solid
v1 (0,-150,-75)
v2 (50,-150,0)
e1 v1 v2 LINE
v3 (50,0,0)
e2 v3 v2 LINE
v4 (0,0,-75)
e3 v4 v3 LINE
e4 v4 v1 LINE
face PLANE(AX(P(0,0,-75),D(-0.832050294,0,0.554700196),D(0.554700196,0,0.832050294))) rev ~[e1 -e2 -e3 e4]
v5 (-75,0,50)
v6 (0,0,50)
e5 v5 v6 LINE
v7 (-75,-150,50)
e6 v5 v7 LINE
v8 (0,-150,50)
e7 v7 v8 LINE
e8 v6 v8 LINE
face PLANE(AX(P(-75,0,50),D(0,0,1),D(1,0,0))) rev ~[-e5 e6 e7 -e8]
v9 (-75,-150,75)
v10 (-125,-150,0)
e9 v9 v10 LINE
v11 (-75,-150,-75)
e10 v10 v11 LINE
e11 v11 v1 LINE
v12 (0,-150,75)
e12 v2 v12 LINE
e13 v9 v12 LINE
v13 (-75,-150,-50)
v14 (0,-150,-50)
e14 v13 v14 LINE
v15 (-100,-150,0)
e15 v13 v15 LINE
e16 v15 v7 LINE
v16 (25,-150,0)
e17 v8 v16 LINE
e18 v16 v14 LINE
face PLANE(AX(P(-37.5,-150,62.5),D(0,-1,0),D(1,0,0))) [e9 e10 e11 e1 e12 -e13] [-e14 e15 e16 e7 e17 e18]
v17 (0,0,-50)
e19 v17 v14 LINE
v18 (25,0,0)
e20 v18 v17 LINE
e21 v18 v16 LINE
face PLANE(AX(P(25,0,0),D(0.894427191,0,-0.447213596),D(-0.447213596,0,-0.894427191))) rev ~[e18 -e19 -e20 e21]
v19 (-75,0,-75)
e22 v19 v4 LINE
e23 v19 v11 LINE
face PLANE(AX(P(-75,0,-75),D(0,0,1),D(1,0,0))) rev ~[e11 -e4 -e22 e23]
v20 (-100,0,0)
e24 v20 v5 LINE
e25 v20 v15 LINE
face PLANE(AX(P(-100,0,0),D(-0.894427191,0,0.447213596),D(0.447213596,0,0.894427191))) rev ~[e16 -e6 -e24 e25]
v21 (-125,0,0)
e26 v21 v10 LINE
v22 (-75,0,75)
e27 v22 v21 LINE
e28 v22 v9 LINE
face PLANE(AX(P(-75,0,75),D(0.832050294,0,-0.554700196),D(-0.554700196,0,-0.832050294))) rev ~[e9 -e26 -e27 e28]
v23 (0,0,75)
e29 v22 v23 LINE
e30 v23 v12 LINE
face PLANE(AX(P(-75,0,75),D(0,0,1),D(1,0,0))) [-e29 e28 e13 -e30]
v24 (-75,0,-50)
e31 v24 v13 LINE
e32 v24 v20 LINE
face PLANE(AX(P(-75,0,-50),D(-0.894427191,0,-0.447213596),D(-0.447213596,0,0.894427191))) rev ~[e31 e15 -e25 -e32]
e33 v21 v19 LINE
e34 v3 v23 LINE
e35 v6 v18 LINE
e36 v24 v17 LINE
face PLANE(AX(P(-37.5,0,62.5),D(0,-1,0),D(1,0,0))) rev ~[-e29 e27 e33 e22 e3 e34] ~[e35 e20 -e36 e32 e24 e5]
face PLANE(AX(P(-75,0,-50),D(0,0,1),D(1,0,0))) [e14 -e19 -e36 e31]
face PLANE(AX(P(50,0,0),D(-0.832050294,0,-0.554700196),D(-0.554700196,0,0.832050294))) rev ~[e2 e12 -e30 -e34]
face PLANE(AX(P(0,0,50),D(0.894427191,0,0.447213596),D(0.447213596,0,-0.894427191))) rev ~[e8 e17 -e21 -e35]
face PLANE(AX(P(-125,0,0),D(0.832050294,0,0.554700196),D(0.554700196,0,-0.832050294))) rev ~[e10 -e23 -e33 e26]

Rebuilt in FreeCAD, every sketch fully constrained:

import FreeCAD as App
import Part
import Sketcher

doc = App.newDocument("Part")
params = doc.addObject("Spreadsheet::Sheet", "Params")
for row, (alias, value) in enumerate([
    ("sketch1_width", "75 mm"),
    ("pad1_length", "150 mm"),
], start=1):
    params.set(f"A{row}", alias)
    params.set(f"B{row}", "=" + value)
    params.setAlias(f"B{row}", alias)

body = doc.addObject("PartDesign::Body", "Body")

sketch1 = body.newObject("Sketcher::SketchObject", "Sketch")
sketch1.AttachmentSupport = (doc.getObject("XZ_Plane"), [""])
sketch1.MapMode = "FlatFace"
sketch1.addGeometry(Part.LineSegment(App.Vector(0, -75, 0), App.Vector(50, 0, 0)), False)
sketch1.addGeometry(Part.LineSegment(App.Vector(50, 0, 0), App.Vector(0, 75, 0)), False)
sketch1.addGeometry(Part.LineSegment(App.Vector(0, 75, 0), App.Vector(-75, 75, 0)), False)
sketch1.addGeometry(Part.LineSegment(App.Vector(-75, 75, 0), App.Vector(-125, 0, 0)), False)
sketch1.addGeometry(Part.LineSegment(App.Vector(-125, 0, 0), App.Vector(-75, -75, 0)), False)
sketch1.addGeometry(Part.LineSegment(App.Vector(-75, -75, 0), App.Vector(0, -75, 0)), False)
sketch1.addGeometry(Part.LineSegment(App.Vector(-75, 50, 0), App.Vector(0, 50, 0)), False)
sketch1.addGeometry(Part.LineSegment(App.Vector(0, 50, 0), App.Vector(25, 0, 0)), False)
sketch1.addGeometry(Part.LineSegment(App.Vector(25, 0, 0), App.Vector(0, -50, 0)), False)
sketch1.addGeometry(Part.LineSegment(App.Vector(0, -50, 0), App.Vector(-75, -50, 0)), False)
sketch1.addGeometry(Part.LineSegment(App.Vector(-75, -50, 0), App.Vector(-100, 0, 0)), False)
sketch1.addGeometry(Part.LineSegment(App.Vector(-100, 0, 0), App.Vector(-75, 50, 0)), False)
sketch1.addConstraint(Sketcher.Constraint("Coincident", 0, 2, 1, 1))
sketch1.addConstraint(Sketcher.Constraint("Coincident", 1, 2, 2, 1))
sketch1.addConstraint(Sketcher.Constraint("Coincident", 2, 2, 3, 1))
sketch1.addConstraint(Sketcher.Constraint("Coincident", 3, 2, 4, 1))
sketch1.addConstraint(Sketcher.Constraint("Coincident", 4, 2, 5, 1))
sketch1.addConstraint(Sketcher.Constraint("Coincident", 5, 2, 0, 1))
sketch1.addConstraint(Sketcher.Constraint("Coincident", 6, 2, 7, 1))
sketch1.addConstraint(Sketcher.Constraint("Coincident", 7, 2, 8, 1))
sketch1.addConstraint(Sketcher.Constraint("Coincident", 8, 2, 9, 1))
sketch1.addConstraint(Sketcher.Constraint("Coincident", 9, 2, 10, 1))
sketch1.addConstraint(Sketcher.Constraint("Coincident", 10, 2, 11, 1))
sketch1.addConstraint(Sketcher.Constraint("Coincident", 11, 2, 6, 1))
sketch1.addConstraint(Sketcher.Constraint("Horizontal", 2))
sketch1.addConstraint(Sketcher.Constraint("Horizontal", 5))
sketch1.addConstraint(Sketcher.Constraint("Horizontal", 6))
sketch1.addConstraint(Sketcher.Constraint("Horizontal", 9))
sketch1.addConstraint(Sketcher.Constraint("Symmetric", 1, 2, 5, 2, -1, 1))
sketch1.addConstraint(Sketcher.Constraint("Symmetric", 6, 2, 8, 2, -1, 1))
sketch1.addConstraint(Sketcher.Constraint("PointOnObject", 0, 2, -1))
sketch1.addConstraint(Sketcher.Constraint("PointOnObject", 1, 2, -2))
sketch1.addConstraint(Sketcher.Constraint("PointOnObject", 3, 2, -1))
sketch1.addConstraint(Sketcher.Constraint("PointOnObject", 6, 2, -2))
sketch1.addConstraint(Sketcher.Constraint("PointOnObject", 7, 2, -1))
sketch1.addConstraint(Sketcher.Constraint("PointOnObject", 10, 2, -1))
sketch1.addConstraint(Sketcher.Constraint("Parallel", 0, 3))
sketch1.addConstraint(Sketcher.Constraint("Parallel", 1, 4))
sketch1.addConstraint(Sketcher.Constraint("Parallel", 7, 10))
sketch1.addConstraint(Sketcher.Constraint("Parallel", 8, 11))
sketch1.addConstraint(Sketcher.Constraint("Vertical", 4, 2, 9, 2))
sketch1.addConstraint(Sketcher.Constraint("DistanceX", 2, 2, 2, 1, 75.0))
sketch1.addConstraint(Sketcher.Constraint("DistanceX", -1, 1, 0, 2, 50.0))
sketch1.addConstraint(Sketcher.Constraint("DistanceY", -1, 1, 1, 2, 75.0))
sketch1.addConstraint(Sketcher.Constraint("DistanceY", -1, 1, 6, 2, 50.0))
sketch1.addConstraint(Sketcher.Constraint("DistanceX", -1, 1, 7, 2, 25.0))
sketch1.setExpression("Constraints[29]", "Params.sketch1_width")
pad1 = body.newObject("PartDesign::Pad", "Pad")
pad1.Profile = sketch1
pad1.setExpression("Length", "Params.pad1_length")

doc.recompute()
